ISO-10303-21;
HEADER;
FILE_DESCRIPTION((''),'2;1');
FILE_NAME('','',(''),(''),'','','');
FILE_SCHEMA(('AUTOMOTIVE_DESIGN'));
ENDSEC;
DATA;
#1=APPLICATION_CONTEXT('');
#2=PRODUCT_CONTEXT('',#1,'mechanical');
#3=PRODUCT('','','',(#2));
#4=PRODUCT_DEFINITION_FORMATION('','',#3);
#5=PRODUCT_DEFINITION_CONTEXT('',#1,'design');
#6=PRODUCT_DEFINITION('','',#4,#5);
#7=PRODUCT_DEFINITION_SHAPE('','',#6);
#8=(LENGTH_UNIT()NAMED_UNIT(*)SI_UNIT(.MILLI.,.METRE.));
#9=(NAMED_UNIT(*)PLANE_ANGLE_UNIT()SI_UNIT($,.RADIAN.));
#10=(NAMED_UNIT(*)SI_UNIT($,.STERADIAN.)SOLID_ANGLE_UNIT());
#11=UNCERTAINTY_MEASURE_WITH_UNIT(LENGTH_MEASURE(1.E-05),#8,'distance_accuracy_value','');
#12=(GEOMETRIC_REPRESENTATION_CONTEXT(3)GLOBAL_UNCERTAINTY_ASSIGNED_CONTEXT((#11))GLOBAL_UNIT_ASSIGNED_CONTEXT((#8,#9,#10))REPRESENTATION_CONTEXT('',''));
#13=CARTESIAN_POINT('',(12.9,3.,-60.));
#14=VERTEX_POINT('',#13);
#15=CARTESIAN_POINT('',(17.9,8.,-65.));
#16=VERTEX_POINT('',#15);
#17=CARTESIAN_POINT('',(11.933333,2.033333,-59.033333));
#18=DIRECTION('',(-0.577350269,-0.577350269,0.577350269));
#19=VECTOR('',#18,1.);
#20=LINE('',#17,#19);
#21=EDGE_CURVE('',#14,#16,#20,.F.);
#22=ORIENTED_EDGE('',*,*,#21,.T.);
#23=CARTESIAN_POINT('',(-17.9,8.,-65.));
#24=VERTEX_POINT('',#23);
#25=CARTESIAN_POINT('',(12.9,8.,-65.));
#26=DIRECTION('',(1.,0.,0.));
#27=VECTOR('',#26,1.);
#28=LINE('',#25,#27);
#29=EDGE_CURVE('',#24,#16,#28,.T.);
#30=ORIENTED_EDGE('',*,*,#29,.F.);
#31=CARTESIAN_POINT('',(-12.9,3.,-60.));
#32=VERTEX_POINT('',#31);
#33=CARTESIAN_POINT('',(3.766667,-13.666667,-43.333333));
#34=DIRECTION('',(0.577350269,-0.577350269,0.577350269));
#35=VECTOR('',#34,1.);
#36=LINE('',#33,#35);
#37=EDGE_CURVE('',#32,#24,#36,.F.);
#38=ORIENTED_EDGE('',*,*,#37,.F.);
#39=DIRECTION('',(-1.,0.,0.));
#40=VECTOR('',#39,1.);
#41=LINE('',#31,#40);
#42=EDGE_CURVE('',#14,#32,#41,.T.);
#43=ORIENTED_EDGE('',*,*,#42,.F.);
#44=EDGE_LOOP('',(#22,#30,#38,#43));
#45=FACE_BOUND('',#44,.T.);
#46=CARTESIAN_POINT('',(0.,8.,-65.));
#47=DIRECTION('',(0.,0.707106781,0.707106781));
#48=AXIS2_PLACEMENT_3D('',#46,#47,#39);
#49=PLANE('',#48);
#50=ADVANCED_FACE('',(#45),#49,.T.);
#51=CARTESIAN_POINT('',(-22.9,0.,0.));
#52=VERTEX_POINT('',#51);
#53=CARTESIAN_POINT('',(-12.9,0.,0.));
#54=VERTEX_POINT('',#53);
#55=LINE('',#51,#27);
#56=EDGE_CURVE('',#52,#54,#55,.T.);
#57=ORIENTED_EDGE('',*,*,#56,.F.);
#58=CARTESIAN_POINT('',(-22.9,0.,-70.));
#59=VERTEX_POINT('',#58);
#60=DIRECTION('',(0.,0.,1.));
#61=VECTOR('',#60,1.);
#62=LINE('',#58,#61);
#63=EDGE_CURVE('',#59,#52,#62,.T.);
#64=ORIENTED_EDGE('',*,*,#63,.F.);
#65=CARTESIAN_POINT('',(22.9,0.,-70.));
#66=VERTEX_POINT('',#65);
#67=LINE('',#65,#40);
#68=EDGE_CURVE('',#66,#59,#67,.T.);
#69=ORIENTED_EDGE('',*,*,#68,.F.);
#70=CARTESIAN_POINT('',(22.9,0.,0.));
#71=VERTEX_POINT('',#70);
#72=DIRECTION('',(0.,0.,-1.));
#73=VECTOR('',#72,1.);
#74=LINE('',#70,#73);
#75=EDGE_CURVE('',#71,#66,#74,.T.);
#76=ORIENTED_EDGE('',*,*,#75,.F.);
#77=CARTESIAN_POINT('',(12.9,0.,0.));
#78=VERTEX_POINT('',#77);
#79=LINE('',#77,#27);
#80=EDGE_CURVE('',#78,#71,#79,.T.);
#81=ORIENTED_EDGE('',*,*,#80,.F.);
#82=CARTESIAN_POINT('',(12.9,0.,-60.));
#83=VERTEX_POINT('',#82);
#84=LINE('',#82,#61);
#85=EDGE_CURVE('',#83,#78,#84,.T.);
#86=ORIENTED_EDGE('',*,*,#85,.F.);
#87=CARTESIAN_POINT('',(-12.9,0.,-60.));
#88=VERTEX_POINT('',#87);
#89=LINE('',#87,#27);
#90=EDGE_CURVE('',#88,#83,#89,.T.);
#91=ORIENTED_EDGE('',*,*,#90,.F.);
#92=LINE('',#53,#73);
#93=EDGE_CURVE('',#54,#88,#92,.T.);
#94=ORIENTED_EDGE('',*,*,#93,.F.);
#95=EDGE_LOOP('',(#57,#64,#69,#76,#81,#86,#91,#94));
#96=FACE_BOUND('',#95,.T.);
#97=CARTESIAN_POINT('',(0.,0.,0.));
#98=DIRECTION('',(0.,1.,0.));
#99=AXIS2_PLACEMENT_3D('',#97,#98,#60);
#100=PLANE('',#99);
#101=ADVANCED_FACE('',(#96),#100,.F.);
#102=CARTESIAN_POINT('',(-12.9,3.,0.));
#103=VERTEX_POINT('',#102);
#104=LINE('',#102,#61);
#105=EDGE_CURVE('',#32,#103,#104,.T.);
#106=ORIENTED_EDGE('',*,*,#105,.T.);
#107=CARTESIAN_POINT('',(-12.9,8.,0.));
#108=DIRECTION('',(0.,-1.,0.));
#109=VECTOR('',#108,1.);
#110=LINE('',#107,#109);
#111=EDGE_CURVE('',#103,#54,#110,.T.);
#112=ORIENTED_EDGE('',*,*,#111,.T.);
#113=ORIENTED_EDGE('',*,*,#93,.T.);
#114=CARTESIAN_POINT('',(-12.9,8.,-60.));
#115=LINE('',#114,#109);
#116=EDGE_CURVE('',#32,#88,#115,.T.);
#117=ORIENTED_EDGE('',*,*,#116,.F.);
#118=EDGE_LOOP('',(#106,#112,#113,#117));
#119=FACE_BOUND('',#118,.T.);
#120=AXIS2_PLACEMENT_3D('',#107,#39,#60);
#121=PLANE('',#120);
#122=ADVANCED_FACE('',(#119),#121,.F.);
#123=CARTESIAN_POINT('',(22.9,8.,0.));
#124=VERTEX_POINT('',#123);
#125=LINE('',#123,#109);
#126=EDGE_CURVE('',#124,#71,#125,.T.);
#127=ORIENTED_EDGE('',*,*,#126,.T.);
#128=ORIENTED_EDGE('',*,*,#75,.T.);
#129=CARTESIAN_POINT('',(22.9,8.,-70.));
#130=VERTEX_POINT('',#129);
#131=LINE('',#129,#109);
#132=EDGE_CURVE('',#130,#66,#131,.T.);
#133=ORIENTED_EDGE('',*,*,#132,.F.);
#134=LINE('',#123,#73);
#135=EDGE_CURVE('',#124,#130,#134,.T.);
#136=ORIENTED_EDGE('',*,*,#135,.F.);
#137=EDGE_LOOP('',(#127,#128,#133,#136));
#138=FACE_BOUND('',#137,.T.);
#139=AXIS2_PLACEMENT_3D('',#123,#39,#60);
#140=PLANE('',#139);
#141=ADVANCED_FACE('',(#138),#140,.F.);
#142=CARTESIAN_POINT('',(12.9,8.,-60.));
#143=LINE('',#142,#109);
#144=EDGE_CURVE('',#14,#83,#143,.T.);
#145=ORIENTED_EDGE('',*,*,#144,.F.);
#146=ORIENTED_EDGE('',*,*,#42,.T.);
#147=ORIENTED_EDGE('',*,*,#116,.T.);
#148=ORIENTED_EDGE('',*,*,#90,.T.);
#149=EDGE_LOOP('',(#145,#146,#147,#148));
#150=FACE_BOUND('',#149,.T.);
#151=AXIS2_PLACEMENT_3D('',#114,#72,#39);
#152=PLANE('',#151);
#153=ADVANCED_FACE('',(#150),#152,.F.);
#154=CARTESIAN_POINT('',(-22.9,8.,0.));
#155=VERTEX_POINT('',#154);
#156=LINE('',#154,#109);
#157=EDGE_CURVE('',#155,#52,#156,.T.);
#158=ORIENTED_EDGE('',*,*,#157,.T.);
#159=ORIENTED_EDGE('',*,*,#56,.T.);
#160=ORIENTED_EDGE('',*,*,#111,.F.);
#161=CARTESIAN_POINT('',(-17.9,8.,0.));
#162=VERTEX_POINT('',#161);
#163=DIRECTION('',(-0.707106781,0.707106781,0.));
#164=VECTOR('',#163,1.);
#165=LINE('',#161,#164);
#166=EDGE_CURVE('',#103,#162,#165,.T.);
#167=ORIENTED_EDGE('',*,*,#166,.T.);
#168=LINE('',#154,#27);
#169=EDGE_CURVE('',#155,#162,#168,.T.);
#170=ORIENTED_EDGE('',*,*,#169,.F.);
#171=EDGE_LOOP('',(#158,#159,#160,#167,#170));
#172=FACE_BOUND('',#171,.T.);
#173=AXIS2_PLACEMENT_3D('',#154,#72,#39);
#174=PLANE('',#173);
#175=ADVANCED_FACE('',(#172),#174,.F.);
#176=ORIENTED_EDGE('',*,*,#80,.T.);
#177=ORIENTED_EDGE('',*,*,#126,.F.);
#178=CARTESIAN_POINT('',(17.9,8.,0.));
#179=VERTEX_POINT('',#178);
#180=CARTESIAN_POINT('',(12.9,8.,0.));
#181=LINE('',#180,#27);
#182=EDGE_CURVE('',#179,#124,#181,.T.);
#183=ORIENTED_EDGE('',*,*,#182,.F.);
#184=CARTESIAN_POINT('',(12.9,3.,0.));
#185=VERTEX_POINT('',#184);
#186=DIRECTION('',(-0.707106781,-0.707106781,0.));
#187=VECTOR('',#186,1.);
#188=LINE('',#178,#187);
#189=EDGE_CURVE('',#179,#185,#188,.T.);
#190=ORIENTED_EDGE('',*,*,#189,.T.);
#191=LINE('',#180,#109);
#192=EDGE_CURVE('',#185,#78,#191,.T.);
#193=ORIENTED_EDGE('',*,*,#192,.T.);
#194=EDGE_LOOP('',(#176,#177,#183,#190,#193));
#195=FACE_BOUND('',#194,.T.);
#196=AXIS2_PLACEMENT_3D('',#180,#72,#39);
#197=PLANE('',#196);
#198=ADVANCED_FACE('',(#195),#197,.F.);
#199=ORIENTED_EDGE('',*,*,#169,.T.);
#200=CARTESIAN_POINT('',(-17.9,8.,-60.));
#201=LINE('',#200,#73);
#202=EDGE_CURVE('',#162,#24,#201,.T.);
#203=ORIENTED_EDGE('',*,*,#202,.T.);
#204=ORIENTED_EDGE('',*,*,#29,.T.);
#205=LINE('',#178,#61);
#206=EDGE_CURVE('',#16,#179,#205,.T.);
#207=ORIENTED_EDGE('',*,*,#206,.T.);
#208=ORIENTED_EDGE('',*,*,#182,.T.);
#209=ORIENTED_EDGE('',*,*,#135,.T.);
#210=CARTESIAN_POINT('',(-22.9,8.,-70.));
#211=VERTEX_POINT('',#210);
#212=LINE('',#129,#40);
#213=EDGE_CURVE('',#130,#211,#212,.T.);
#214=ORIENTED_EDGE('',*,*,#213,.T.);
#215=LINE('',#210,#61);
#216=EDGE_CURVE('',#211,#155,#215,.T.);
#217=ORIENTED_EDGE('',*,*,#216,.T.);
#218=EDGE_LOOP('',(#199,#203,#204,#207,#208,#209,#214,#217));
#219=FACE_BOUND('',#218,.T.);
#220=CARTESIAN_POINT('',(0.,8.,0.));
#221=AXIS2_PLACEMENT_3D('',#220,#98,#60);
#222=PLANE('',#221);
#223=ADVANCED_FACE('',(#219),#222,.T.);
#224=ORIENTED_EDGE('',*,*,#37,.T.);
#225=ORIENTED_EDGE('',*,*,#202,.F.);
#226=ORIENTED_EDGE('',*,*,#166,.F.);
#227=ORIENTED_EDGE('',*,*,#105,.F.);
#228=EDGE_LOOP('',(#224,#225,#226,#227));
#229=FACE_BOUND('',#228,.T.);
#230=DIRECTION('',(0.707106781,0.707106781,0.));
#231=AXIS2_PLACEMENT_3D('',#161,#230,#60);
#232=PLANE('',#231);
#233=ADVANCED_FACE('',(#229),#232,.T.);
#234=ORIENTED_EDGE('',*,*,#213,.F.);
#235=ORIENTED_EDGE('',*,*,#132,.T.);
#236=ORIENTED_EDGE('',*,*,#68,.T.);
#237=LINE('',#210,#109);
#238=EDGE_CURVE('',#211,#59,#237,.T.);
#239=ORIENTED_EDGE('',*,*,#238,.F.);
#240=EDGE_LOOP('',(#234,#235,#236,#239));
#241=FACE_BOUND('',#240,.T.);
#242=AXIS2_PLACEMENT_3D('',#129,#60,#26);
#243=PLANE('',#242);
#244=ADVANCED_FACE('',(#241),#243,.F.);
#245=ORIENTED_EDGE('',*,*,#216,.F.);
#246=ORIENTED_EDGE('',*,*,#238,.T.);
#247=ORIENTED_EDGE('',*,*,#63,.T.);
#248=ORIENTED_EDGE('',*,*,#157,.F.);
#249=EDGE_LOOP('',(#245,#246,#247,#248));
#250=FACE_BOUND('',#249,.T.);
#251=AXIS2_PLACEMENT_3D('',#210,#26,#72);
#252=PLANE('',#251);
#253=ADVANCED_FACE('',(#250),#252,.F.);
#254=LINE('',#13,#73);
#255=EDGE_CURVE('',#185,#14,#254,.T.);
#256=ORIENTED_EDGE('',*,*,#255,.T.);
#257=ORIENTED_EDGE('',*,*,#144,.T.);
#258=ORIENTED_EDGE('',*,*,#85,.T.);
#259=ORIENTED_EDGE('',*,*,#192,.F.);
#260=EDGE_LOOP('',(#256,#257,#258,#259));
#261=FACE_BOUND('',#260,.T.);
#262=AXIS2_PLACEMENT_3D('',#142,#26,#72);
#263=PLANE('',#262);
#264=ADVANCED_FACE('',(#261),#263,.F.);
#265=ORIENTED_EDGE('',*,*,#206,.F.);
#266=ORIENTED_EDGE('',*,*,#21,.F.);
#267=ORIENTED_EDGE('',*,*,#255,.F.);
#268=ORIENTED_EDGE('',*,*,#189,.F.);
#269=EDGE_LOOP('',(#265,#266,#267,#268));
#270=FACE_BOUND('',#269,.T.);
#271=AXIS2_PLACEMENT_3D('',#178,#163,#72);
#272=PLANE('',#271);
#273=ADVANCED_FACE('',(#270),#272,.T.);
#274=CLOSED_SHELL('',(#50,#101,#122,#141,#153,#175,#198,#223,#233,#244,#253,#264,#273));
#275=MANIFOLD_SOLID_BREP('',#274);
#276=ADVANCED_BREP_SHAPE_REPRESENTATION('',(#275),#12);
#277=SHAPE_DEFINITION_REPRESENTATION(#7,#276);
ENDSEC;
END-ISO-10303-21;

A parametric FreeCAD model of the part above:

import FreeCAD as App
import Part
import Sketcher
from FreeCAD import Vector
Q = App.Units.Quantity


def edges_at(feature, points):
    """Names of the edges that pass closest to the given points."""
    edges = feature.Shape.Edges
    near = lambda p: min(range(len(edges)), key=lambda i: edges[i].distToShape(Part.Vertex(*p))[0])
    return sorted({f"Edge{near(p) + 1}" for p in points})


def add_polygon(sketch, points):
    """Adds a closed chain of lines whose ends are joined by coincident constraints."""
    first, n = sketch.GeometryCount, len(points)
    for a, b in zip(points, points[1:] + points[:1]):
        sketch.addGeometry(Part.LineSegment(App.Vector(*a, 0), App.Vector(*b, 0)), False)
    for i in range(n):
        sketch.addConstraint(Sketcher.Constraint("Coincident", first + i, 2, first + (i + 1) % n, 1))

doc = App.newDocument("Part")
params = doc.addObject("Spreadsheet::Sheet", "Params")
for row, (alias, value) in enumerate([
    ("sketch1_width", "10 mm"),
    ("sketch1_height", "60 mm"),
    ("sketch1_height2", "70 mm"),
    ("sketch1_width2", "25.8 mm"),
    ("pad1_length", "8 mm"),
    ("chamfer_size", "5 mm"),
], start=1):
    params.set(f"A{row}", alias)
    params.set(f"B{row}", "=" + value)
    params.setAlias(f"B{row}", alias)

body = doc.addObject("PartDesign::Body", "Body")

sketch1 = body.newObject("Sketcher::SketchObject", "Sketch")
sketch1.AttachmentSupport = (doc.getObject("XZ_Plane"), [""])
sketch1.MapMode = "FlatFace"
add_polygon(sketch1, [(-22.9, 0), (-12.9, 0), (-12.9, -60), (12.9, -60), (12.9, 0), (22.9, 0), (22.9, -70), (-22.9, -70)])
sketch1.addConstraint([
    Sketcher.Constraint("Horizontal", 0),
    Sketcher.Constraint("Vertical", 1),
    Sketcher.Constraint("Horizontal", 2),
    Sketcher.Constraint("Vertical", 3),
    Sketcher.Constraint("Horizontal", 4),
    Sketcher.Constraint("Vertical", 5),
    Sketcher.Constraint("Horizontal", 6),
    Sketcher.Constraint("Vertical", 7),
    Sketcher.Constraint("Symmetric", 0, 2, 3, 2, -1, 1),
    Sketcher.Constraint("Symmetric", 4, 2, 7, 2, -2),
    Sketcher.Constraint("DistanceX", 0, 1, 0, 2, Q("10 mm")),
    Sketcher.Constraint("DistanceY", 1, 2, 1, 1, Q("60 mm")),
    Sketcher.Constraint("DistanceY", 5, 2, 5, 1, Q("70 mm")),
    Sketcher.Constraint("DistanceX", 2, 1, 2, 2, Q("25.8 mm")),
])
sketch1.setExpression("Constraints[18]", "Params.sketch1_width")
sketch1.setExpression("Constraints[19]", "Params.sketch1_height")
sketch1.setExpression("Constraints[20]", "Params.sketch1_height2")
sketch1.setExpression("Constraints[21]", "Params.sketch1_width2")
pad1 = body.newObject("PartDesign::Pad", "Pad")
pad1.Profile = sketch1
pad1.setExpression("Length", "Params.pad1_length")
pad1.Reversed = True
doc.recompute()

chamfer = body.newObject("PartDesign::Chamfer", "Chamfer")
chamfer.Base = (pad1, edges_at(pad1, [(-12.9, 8, -30), (0, 8, -60), (12.9, 8, -30)]))
chamfer.setExpression("Size", "Params.chamfer_size")

doc.recompute()
